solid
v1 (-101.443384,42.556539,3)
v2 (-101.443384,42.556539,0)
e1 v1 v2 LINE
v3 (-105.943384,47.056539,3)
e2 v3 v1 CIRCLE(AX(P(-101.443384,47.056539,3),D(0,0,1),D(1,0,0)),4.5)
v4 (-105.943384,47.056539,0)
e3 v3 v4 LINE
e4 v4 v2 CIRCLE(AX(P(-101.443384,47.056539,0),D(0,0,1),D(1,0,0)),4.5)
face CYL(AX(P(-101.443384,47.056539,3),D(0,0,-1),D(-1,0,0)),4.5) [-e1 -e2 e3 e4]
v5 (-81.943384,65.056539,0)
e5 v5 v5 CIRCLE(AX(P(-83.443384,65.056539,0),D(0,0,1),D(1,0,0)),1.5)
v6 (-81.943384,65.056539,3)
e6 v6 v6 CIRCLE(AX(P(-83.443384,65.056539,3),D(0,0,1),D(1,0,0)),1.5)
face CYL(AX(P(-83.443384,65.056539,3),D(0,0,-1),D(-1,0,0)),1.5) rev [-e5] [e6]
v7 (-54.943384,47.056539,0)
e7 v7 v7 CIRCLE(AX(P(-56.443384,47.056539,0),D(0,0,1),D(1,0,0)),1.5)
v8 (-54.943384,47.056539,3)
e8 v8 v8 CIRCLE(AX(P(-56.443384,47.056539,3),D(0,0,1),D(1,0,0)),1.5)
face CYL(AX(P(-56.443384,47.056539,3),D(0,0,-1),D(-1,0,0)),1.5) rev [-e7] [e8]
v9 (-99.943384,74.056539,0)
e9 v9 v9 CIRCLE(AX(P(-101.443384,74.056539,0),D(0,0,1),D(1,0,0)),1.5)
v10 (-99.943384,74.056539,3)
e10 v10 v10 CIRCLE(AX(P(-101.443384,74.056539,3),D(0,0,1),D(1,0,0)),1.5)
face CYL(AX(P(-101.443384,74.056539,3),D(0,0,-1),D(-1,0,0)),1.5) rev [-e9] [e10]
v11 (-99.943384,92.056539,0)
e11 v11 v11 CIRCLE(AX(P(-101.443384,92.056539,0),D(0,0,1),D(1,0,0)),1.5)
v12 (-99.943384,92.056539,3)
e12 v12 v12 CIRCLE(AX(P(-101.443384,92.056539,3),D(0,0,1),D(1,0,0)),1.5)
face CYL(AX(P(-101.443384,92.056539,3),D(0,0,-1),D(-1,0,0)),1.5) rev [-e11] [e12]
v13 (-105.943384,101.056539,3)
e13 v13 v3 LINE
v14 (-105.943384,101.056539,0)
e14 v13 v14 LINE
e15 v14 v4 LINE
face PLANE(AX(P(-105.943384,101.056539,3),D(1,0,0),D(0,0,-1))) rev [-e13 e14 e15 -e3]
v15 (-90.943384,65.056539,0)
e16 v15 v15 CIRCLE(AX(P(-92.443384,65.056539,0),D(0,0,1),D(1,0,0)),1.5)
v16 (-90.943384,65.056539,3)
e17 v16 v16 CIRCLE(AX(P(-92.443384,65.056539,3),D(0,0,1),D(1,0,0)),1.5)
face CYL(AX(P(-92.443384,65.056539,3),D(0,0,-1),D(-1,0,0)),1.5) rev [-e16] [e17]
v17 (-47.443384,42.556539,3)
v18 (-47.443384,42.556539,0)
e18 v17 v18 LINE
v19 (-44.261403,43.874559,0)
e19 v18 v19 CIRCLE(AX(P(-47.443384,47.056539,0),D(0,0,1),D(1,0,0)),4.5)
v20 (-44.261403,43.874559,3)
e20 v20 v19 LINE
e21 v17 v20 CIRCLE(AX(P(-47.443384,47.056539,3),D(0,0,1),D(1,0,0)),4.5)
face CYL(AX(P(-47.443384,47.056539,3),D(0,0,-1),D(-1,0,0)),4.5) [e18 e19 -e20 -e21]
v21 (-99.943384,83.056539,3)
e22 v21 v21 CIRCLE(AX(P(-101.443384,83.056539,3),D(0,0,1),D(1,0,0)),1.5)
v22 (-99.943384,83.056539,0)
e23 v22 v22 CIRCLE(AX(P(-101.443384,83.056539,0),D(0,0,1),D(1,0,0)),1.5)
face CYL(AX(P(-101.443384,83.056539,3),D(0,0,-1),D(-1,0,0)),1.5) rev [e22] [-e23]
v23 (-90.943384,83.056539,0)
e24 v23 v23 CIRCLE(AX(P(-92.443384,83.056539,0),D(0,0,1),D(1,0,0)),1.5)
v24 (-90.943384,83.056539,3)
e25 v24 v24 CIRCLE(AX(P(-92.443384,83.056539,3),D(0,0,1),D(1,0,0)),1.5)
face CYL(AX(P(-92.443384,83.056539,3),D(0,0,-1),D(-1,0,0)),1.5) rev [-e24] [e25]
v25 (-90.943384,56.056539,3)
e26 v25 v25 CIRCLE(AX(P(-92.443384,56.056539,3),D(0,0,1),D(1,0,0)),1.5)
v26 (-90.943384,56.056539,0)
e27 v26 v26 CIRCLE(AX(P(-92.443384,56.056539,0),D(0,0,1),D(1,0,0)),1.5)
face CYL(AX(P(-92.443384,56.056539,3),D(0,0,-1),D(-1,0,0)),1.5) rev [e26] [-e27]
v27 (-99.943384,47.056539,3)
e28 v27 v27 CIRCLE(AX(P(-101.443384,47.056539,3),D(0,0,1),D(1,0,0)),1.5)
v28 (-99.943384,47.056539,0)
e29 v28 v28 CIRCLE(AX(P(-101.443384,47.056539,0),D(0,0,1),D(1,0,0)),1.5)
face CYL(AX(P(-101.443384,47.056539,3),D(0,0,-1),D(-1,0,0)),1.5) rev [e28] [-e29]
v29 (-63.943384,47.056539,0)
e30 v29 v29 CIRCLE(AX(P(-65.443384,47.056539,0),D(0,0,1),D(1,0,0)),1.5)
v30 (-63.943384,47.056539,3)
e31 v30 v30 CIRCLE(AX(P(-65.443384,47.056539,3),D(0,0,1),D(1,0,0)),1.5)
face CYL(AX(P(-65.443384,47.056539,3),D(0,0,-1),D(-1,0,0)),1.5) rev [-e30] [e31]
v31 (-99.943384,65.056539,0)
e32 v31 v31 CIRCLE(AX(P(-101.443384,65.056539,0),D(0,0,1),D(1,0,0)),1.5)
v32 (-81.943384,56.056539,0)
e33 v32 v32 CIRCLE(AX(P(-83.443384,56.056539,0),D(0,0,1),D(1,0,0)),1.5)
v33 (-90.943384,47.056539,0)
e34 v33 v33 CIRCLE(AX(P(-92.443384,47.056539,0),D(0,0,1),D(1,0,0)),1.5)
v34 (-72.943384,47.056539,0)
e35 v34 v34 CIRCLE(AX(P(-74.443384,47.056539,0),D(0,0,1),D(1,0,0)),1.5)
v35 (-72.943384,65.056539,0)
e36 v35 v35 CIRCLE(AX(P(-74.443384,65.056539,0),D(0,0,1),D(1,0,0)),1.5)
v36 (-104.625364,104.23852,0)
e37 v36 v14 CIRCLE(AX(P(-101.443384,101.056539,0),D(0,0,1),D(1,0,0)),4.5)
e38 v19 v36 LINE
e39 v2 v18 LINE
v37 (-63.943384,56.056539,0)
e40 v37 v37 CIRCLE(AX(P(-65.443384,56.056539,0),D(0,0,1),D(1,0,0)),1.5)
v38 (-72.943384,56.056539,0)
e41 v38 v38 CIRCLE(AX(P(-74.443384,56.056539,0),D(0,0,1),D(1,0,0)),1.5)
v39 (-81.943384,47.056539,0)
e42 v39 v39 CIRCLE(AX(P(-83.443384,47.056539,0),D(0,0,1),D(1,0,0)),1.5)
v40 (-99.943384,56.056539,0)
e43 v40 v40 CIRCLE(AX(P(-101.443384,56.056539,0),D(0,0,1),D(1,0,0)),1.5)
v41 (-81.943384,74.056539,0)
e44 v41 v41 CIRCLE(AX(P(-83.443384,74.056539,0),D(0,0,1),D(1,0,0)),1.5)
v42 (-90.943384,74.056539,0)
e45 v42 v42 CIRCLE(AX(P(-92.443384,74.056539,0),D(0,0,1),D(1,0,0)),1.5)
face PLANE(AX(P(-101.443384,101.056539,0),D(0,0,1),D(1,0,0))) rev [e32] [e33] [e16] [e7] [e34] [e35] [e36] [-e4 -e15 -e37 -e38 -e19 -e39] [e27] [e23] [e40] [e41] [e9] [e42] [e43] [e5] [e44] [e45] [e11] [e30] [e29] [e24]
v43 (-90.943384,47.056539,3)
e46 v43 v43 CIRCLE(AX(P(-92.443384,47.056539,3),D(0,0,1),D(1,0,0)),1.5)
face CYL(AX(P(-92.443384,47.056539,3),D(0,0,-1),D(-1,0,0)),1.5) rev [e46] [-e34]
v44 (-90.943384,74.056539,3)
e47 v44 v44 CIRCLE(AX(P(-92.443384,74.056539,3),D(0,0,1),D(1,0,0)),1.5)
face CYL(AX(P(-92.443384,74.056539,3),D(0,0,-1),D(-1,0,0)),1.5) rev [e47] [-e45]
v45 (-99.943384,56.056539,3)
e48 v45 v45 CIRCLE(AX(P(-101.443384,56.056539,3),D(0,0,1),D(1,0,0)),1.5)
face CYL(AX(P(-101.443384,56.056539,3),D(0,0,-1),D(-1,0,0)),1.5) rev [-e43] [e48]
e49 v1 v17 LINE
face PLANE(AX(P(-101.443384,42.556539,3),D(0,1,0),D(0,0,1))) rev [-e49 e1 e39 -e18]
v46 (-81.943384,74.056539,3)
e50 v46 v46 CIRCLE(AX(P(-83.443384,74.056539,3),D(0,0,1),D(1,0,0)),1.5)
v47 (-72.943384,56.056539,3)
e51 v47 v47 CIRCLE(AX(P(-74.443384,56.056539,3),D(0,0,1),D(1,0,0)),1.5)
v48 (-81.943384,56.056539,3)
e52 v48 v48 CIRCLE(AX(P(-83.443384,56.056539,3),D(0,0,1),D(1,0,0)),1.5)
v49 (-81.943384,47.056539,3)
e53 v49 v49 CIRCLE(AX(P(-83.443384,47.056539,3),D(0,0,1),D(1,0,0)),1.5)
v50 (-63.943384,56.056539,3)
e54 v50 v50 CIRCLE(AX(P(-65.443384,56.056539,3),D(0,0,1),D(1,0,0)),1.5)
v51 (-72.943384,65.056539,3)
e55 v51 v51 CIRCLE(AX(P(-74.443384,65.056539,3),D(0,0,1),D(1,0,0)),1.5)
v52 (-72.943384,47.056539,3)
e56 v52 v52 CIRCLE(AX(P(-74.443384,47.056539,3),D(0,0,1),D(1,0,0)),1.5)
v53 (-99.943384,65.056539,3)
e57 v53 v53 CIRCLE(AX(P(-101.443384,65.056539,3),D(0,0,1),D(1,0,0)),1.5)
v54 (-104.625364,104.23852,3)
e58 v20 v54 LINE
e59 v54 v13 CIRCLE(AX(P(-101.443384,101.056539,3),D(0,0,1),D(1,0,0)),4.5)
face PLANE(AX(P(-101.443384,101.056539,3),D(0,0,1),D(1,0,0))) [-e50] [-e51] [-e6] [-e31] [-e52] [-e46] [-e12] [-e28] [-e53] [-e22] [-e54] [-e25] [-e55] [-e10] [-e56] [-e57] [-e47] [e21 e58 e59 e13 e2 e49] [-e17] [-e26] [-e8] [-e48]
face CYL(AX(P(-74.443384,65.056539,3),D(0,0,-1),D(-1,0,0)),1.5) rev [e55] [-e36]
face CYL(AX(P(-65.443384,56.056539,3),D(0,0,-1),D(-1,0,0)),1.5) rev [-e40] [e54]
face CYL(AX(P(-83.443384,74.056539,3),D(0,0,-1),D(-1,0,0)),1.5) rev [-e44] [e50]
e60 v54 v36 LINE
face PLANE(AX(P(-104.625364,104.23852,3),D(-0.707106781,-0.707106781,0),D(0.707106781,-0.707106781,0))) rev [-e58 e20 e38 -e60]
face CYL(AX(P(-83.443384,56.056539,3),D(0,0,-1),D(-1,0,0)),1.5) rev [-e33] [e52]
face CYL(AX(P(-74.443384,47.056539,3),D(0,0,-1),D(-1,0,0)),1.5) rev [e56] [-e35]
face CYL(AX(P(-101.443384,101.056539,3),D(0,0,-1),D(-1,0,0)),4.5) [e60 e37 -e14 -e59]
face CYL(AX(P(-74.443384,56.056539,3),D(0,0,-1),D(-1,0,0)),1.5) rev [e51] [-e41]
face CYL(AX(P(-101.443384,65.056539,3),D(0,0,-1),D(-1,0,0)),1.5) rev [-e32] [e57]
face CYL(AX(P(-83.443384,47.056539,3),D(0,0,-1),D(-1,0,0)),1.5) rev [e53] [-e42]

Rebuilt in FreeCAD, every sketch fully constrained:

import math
import FreeCAD as App
import Part
import Sketcher
from FreeCAD import Vector
Q = App.Units.Quantity

doc = App.newDocument("Part")
params = doc.addObject("Spreadsheet::Sheet", "Params")
for row, (alias, value) in enumerate([
    ("sketch1_diameter", "3 mm"),
    ("sketch1_radius", "4.5 mm"),
    ("sketch1_width", "54 mm"),
    ("pad1_length", "3 mm"),
], start=1):
    params.set(f"A{row}", alias)
    params.set(f"B{row}", "=" + value)
    params.setAlias(f"B{row}", alias)

body = doc.addObject("PartDesign::Body", "Body")

# Sketch on XY plane
sketch1 = body.newObject("Sketcher::SketchObject", "Sketch")
sketch1.AttachmentSupport = (doc.getObject("XY_Plane"), [""])
sketch1.MapMode = "FlatFace"
sketch1.addGeometry([
    Part.LineSegment(Vector(-105.9, 101.1, 0), Vector(-105.9, 47.1, 0)),  # 0
    Part.ArcOfCircle(Part.Circle(Vector(-101.4, 47.1, 0), Vector(0, 0, 1), 4.5), math.radians(-180), math.radians(-90)),  # 1
    Part.LineSegment(Vector(-101.4, 42.6, 0), Vector(-47.4, 42.6, 0)),  # 2
    Part.ArcOfCircle(Part.Circle(Vector(-47.4, 47.1, 0), Vector(0, 0, 1), 4.5), math.radians(-90), math.radians(-45)),  # 3
    Part.LineSegment(Vector(-44.3, 43.9, 0), Vector(-104.6, 104.2, 0)),  # 4
    Part.ArcOfCircle(Part.Circle(Vector(-101.4, 101.1, 0), Vector(0, 0, 1), 4.5), math.radians(135), math.radians(180)),  # 5
    Part.Circle(Vector(-101.4, 47.1, 0), Vector(0, 0, 1), 1.5),  # 6
    Part.Circle(Vector(-92.4, 47.1, 0), Vector(0, 0, 1), 1.5),  # 7
    Part.Circle(Vector(-101.4, 56.1, 0), Vector(0, 0, 1), 1.5),  # 8
    Part.Circle(Vector(-92.4, 56.1, 0), Vector(0, 0, 1), 1.5),  # 9
    Part.Circle(Vector(-83.4, 47.1, 0), Vector(0, 0, 1), 1.5),  # 10
    Part.Circle(Vector(-83.4, 56.1, 0), Vector(0, 0, 1), 1.5),  # 11
    Part.Circle(Vector(-101.4, 65.1, 0), Vector(0, 0, 1), 1.5),  # 12
    Part.Circle(Vector(-92.4, 65.1, 0), Vector(0, 0, 1), 1.5),  # 13
    Part.Circle(Vector(-83.4, 65.1, 0), Vector(0, 0, 1), 1.5),  # 14
    Part.Circle(Vector(-74.4, 47.1, 0), Vector(0, 0, 1), 1.5),  # 15
    Part.Circle(Vector(-74.4, 56.1, 0), Vector(0, 0, 1), 1.5),  # 16
    Part.Circle(Vector(-65.4, 47.1, 0), Vector(0, 0, 1), 1.5),  # 17
    Part.Circle(Vector(-56.4, 47.1, 0), Vector(0, 0, 1), 1.5),  # 18
    Part.Circle(Vector(-65.4, 56.1, 0), Vector(0, 0, 1), 1.5),  # 19
    Part.Circle(Vector(-74.4, 65.1, 0), Vector(0, 0, 1), 1.5),  # 20
    Part.Circle(Vector(-101.4, 74.1, 0), Vector(0, 0, 1), 1.5),  # 21
    Part.Circle(Vector(-92.4, 74.1, 0), Vector(0, 0, 1), 1.5),  # 22
    Part.Circle(Vector(-83.4, 74.1, 0), Vector(0, 0, 1), 1.5),  # 23
    Part.Circle(Vector(-101.4, 83.1, 0), Vector(0, 0, 1), 1.5),  # 24
    Part.Circle(Vector(-92.4, 83.1, 0), Vector(0, 0, 1), 1.5),  # 25
    Part.Circle(Vector(-101.4, 92.1, 0), Vector(0, 0, 1), 1.5),  # 26
], False)
sketch1.addConstraint([
    Sketcher.Constraint("Tangent", 0, 2, 1, 1),
    Sketcher.Constraint("Tangent", 1, 2, 2, 1),
    Sketcher.Constraint("Tangent", 2, 2, 3, 1),
    Sketcher.Constraint("Coincident", 3, 2, 4, 1),
    Sketcher.Constraint("Coincident", 4, 2, 5, 1),
    Sketcher.Constraint("Tangent", 5, 2, 0, 1),
    Sketcher.Constraint("Vertical", 0),
    Sketcher.Constraint("Horizontal", 2),
    Sketcher.Constraint("Coincident", 6, 3, 1, 3),
    Sketcher.Constraint("Equal", 1, 3),
    Sketcher.Constraint("Equal", 3, 5),
    Sketcher.Constraint("Equal", 6, 7),
    Sketcher.Constraint("Equal", 7, 8),
    Sketcher.Constraint("Equal", 8, 9),
    Sketcher.Constraint("Equal", 9, 10),
    Sketcher.Constraint("Equal", 10, 11),
    Sketcher.Constraint("Equal", 11, 12),
    Sketcher.Constraint("Equal", 12, 13),
    Sketcher.Constraint("Equal", 13, 14),
    Sketcher.Constraint("Equal", 14, 15),
    Sketcher.Constraint("Equal", 15, 16),
    Sketcher.Constraint("Equal", 16, 17),
    Sketcher.Constraint("Equal", 17, 18),
    Sketcher.Constraint("Equal", 18, 19),
    Sketcher.Constraint("Equal", 19, 20),
    Sketcher.Constraint("Equal", 20, 21),
    Sketcher.Constraint("Equal", 21, 22),
    Sketcher.Constraint("Equal", 22, 23),
    Sketcher.Constraint("Equal", 23, 24),
    Sketcher.Constraint("Equal", 24, 25),
    Sketcher.Constraint("Equal", 25, 26),
    Sketcher.Constraint("Horizontal", 6, 3, 7, 3),
    Sketcher.Constraint("Horizontal", 8, 3, 9, 3),
    Sketcher.Constraint("Horizontal", 7, 3, 10, 3),
    Sketcher.Constraint("Horizontal", 9, 3, 11, 3),
    Sketcher.Constraint("Horizontal", 12, 3, 13, 3),
    Sketcher.Constraint("Horizontal", 13, 3, 14, 3),
    Sketcher.Constraint("Horizontal", 10, 3, 15, 3),
    Sketcher.Constraint("Horizontal", 11, 3, 16, 3),
    Sketcher.Constraint("Horizontal", 15, 3, 17, 3),
    Sketcher.Constraint("Horizontal", 17, 3, 18, 3),
    Sketcher.Constraint("Horizontal", 16, 3, 19, 3),
    Sketcher.Constraint("Horizontal", 14, 3, 20, 3),
    Sketcher.Constraint("Horizontal", 21, 3, 22, 3),
    Sketcher.Constraint("Horizontal", 22, 3, 23, 3),
    Sketcher.Constraint("Horizontal", 24, 3, 25, 3),
    Sketcher.Constraint("Vertical", 6, 3, 8, 3),
    Sketcher.Constraint("Vertical", 7, 3, 9, 3),
    Sketcher.Constraint("Vertical", 10, 3, 11, 3),
    Sketcher.Constraint("Vertical", 8, 3, 12, 3),
    Sketcher.Constraint("Vertical", 9, 3, 13, 3),
    Sketcher.Constraint("Vertical", 11, 3, 14, 3),
    Sketcher.Constraint("Vertical", 15, 3, 16, 3),
    Sketcher.Constraint("Vertical", 17, 3, 19, 3),
    Sketcher.Constraint("Vertical", 16, 3, 20, 3),
    Sketcher.Constraint("Vertical", 12, 3, 21, 3),
    Sketcher.Constraint("Vertical", 13, 3, 22, 3),
    Sketcher.Constraint("Vertical", 14, 3, 23, 3),
    Sketcher.Constraint("Vertical", 21, 3, 24, 3),
    Sketcher.Constraint("Vertical", 22, 3, 25, 3),
    Sketcher.Constraint("Vertical", 24, 3, 26, 3),
    Sketcher.Constraint("Equal", 2, 0),
    Sketcher.Constraint("Diameter", 6, 3.0),
    Sketcher.Constraint("Radius", 1, 4.5),
    Sketcher.Constraint("DistanceX", 2, 1, 2, 2, 54.0),
    Sketcher.Constraint("Angle", 4, Q("135 deg")),
    Sketcher.Constraint("DistanceX", 1, 3, 7, 3, 9.0),
    Sketcher.Constraint("DistanceY", 1, 3, 8, 3, 9.0),
    Sketcher.Constraint("DistanceX", 7, 3, 10, 3, 9.0),
    Sketcher.Constraint("DistanceY", 8, 3, 12, 3, 9.0),
    Sketcher.Constraint("DistanceX", 10, 3, 15, 3, 9.0),
    Sketcher.Constraint("DistanceX", 15, 3, 17, 3, 9.0),
    Sketcher.Constraint("DistanceX", 18, 3, 3, 3, 9.0),
    Sketcher.Constraint("DistanceY", 12, 3, 21, 3, 9.0),
    Sketcher.Constraint("DistanceY", 21, 3, 24, 3, 9.0),
    Sketcher.Constraint("DistanceY", 26, 3, 5, 3, 9.0),
    Sketcher.Constraint("DistanceY", -1, 1, 1, 3, 47.056539),
    Sketcher.Constraint("DistanceY", -1, 1, 3, 2, 43.874559),
    Sketcher.Constraint("DistanceX", 1, 3, -1, 1, 101.443384),
])
sketch1.setExpression("Constraints[62]", "Params.sketch1_diameter")
sketch1.setExpression("Constraints[63]", "Params.sketch1_radius")
sketch1.setExpression("Constraints[64]", "Params.sketch1_width")
pad1 = body.newObject("PartDesign::Pad", "Pad")
pad1.Profile = sketch1
pad1.setExpression("Length", "Params.pad1_length")

doc.recompute()
